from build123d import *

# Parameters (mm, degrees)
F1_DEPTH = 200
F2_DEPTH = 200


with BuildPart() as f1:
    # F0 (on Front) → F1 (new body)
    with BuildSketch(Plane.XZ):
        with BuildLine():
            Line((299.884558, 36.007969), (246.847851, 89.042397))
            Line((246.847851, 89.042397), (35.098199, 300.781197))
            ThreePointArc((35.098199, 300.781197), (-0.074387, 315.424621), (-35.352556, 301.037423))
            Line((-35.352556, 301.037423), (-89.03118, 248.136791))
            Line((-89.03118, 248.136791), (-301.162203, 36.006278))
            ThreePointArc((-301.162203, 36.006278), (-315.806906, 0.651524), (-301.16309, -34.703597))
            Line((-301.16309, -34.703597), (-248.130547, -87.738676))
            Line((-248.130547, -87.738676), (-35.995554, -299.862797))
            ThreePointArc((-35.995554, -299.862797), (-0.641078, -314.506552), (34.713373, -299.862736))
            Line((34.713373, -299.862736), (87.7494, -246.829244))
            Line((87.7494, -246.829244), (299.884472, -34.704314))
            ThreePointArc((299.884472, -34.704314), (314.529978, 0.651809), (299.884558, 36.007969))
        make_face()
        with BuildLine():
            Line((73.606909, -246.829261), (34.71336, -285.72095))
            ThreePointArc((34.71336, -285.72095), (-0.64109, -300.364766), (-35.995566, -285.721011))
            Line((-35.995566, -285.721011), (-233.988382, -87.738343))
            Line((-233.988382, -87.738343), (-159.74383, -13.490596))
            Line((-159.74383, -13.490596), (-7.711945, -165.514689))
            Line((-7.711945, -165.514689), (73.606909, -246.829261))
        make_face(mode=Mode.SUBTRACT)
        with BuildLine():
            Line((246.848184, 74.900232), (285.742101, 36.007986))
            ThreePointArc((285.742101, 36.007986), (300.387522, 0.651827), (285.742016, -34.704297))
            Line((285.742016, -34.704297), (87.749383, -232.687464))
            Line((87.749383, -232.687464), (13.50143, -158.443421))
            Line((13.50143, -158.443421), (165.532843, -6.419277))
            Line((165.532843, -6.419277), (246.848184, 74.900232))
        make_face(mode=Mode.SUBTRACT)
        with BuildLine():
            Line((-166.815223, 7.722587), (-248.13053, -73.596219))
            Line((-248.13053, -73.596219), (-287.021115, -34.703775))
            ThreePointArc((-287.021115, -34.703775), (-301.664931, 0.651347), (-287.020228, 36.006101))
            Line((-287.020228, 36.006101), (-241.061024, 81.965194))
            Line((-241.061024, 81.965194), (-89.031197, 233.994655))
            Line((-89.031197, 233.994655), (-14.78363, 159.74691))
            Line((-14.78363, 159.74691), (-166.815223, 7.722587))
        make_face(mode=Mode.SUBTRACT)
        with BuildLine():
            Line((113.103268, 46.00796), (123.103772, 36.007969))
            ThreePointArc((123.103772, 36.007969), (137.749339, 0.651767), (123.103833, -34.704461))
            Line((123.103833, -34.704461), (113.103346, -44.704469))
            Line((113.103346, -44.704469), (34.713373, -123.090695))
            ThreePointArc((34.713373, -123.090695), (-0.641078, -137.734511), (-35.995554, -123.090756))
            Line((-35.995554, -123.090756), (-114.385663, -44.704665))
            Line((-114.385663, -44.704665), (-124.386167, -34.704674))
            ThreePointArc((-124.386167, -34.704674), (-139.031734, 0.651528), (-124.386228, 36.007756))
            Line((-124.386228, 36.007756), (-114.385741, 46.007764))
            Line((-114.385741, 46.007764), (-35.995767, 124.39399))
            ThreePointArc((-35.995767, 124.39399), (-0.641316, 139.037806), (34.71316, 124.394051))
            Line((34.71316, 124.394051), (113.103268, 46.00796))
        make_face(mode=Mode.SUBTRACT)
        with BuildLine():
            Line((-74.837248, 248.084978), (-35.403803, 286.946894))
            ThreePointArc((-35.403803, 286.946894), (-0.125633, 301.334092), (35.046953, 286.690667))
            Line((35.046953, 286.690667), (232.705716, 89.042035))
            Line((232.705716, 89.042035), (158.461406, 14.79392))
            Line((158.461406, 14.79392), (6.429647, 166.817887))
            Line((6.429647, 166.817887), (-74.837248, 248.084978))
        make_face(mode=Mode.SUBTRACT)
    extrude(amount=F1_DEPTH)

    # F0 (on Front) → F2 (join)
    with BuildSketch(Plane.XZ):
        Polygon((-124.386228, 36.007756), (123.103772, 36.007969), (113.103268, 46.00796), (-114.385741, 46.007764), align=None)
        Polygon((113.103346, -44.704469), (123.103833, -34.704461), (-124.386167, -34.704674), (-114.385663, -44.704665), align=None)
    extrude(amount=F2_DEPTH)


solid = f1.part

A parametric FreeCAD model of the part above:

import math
import FreeCAD as App
import Part
import Sketcher

V = App.Vector


def add_polygon(sketch, points):
    """Adds a closed chain of lines whose ends are joined by coincident constraints."""
    first, n = sketch.GeometryCount, len(points)
    for a, b in zip(points, points[1:] + points[:1]):
        sketch.addGeometry(Part.LineSegment(App.Vector(*a, 0), App.Vector(*b, 0)), False)
    for i in range(n):
        sketch.addConstraint(Sketcher.Constraint("Coincident", first + i, 2, first + (i + 1) % n, 1))

doc = App.newDocument("Part")
body = doc.addObject("PartDesign::Body", "Body")

# Sketch on XZ plane
sketch1 = body.newObject("Sketcher::SketchObject", "Sketch")
sketch1.AttachmentSupport = (doc.getObject("XZ_Plane"), [""])
sketch1.MapMode = "FlatFace"
sketch1.addGeometry([
    Part.LineSegment(V(299.884558, 36.007969, 0), V(246.847851, 89.042397, 0)),  # 0
    Part.LineSegment(V(246.847851, 89.042397, 0), V(35.098199, 300.781197, 0)),  # 1
    Part.ArcOfCircle(Part.Circle(V(-0.256233, 265.424953, 0), V(0, 0, 1), 49.999999), math.radians(45.001468), math.radians(134.58177)),  # 2
    Part.LineSegment(V(-35.352556, 301.037423, 0), V(-89.03118, 248.136791, 0)),  # 3
    Part.LineSegment(V(-89.03118, 248.136791, 0), V(-301.162203, 36.006278, 0)),  # 4
    Part.ArcOfCircle(Part.Circle(V(-265.806906, 0.650897, 0), V(0, 0, 1), 50), math.radians(134.999932), math.radians(224.998631)),  # 5
    Part.LineSegment(V(-301.16309, -34.703597, 0), V(-248.130547, -87.738676, 0)),  # 6
    Part.LineSegment(V(-248.130547, -87.738676, 0), V(-35.995554, -299.862797, 0)),  # 7
    Part.ArcOfCircle(Part.Circle(V(-0.641121, -264.506552, 0), V(0, 0, 1), 50), math.radians(-134.998532), math.radians(-45.001369)),  # 8
    Part.LineSegment(V(34.713373, -299.862736, 0), V(87.7494, -246.829244, 0)),  # 9
    Part.LineSegment(V(87.7494, -246.829244, 0), V(299.884472, -34.704314, 0)),  # 10
    Part.ArcOfCircle(Part.Circle(V(264.529977, 0.65187, 0), V(0, 0, 1), 50.000001), math.radians(-45.001369), math.radians(45.00123)),  # 11
    Part.LineSegment(V(-7.711945, -165.514689, 0), V(73.606909, -246.829261, 0)),  # 12
    Part.LineSegment(V(73.606909, -246.829261, 0), V(34.71336, -285.72095, 0)),  # 13
    Part.ArcOfCircle(Part.Circle(V(-0.641134, -250.364767, 0), V(0, 0, 1), 49.999999), math.radians(-134.998533), math.radians(-45.001369)),  # 14
    Part.LineSegment(V(-35.995566, -285.721011, 0), V(-233.988382, -87.738343, 0)),  # 15
    Part.LineSegment(V(-233.988382, -87.738343, 0), V(-159.74383, -13.490596, 0)),  # 16
    Part.LineSegment(V(-159.74383, -13.490596, 0), V(-7.711945, -165.514689, 0)),  # 17
    Part.LineSegment(V(165.532843, -6.419277, 0), V(246.848184, 74.900232, 0)),  # 18
    Part.LineSegment(V(246.848184, 74.900232, 0), V(285.742101, 36.007986, 0)),  # 19
    Part.ArcOfCircle(Part.Circle(V(250.387522, 0.651887, 0), V(0, 0, 1), 50), math.radians(-45.00137), math.radians(45.001232)),  # 20
    Part.LineSegment(V(285.742016, -34.704297, 0), V(87.749383, -232.687464, 0)),  # 21
    Part.LineSegment(V(87.749383, -232.687464, 0), V(13.50143, -158.443421, 0)),  # 22
    Part.LineSegment(V(13.50143, -158.443421, 0), V(165.532843, -6.419277, 0)),  # 23
    Part.LineSegment(V(-14.78363, 159.74691, 0), V(-166.815223, 7.722587, 0)),  # 24
    Part.LineSegment(V(-166.815223, 7.722587, 0), V(-248.13053, -73.596219, 0)),  # 25
    Part.LineSegment(V(-248.13053, -73.596219, 0), V(-287.021115, -34.703775, 0)),  # 26
    Part.ArcOfCircle(Part.Circle(V(-251.66493, 0.650719, 0), V(0, 0, 1), 50.000001), math.radians(134.999932), math.radians(224.99863)),  # 27
    Part.LineSegment(V(-287.020228, 36.006101, 0), V(-241.061024, 81.965194, 0)),  # 28
    Part.LineSegment(V(-241.061024, 81.965194, 0), V(-89.031197, 233.994655, 0)),  # 29
    Part.LineSegment(V(-89.031197, 233.994655, 0), V(-14.78363, 159.74691, 0)),  # 30
    Part.LineSegment(V(34.71316, 124.394051, 0), V(113.103268, 46.00796, 0)),  # 31
    Part.LineSegment(V(113.103268, 46.00796, 0), V(123.103772, 36.007969, 0)),  # 32
    Part.ArcOfCircle(Part.Circle(V(87.749338, 0.651724, 0), V(0, 0, 1), 50.000001), math.radians(-45.001369), math.radians(45.001468)),  # 33
    Part.LineSegment(V(123.103833, -34.704461, 0), V(113.103346, -44.704469, 0)),  # 34
    Part.LineSegment(V(113.103346, -44.704469, 0), V(34.713373, -123.090695, 0)),  # 35
    Part.ArcOfCircle(Part.Circle(V(-0.641121, -87.734511, 0), V(0, 0, 1), 50), math.radians(-134.998532), math.radians(-45.001369)),  # 36
    Part.LineSegment(V(-35.995554, -123.090756, 0), V(-114.385663, -44.704665, 0)),  # 37
    Part.LineSegment(V(-114.385663, -44.704665, 0), V(-124.386167, -34.704674, 0)),  # 38
    Part.ArcOfCircle(Part.Circle(V(-89.031733, 0.651571, 0), V(0, 0, 1), 50.000001), math.radians(134.998631), math.radians(225.001468)),  # 39
    Part.LineSegment(V(-124.386228, 36.007756, 0), V(-114.385741, 46.007764, 0)),  # 40
    Part.LineSegment(V(-114.385741, 46.007764, 0), V(-35.995767, 124.39399, 0)),  # 41
    Part.ArcOfCircle(Part.Circle(V(-0.641273, 89.037806, 0), V(0, 0, 1), 50), math.radians(45.001468), math.radians(134.998631)),  # 42
    Part.LineSegment(V(6.429647, 166.817887, 0), V(-74.837248, 248.084978, 0)),  # 43
    Part.LineSegment(V(-74.837248, 248.084978, 0), V(-35.403803, 286.946894, 0)),  # 44
    Part.ArcOfCircle(Part.Circle(V(-0.30748, 251.334424, 0), V(0, 0, 1), 49.999999), math.radians(45.001467), math.radians(134.58177)),  # 45
    Part.LineSegment(V(35.046953, 286.690667, 0), V(232.705716, 89.042035, 0)),  # 46
    Part.LineSegment(V(232.705716, 89.042035, 0), V(158.461406, 14.79392, 0)),  # 47
    Part.LineSegment(V(158.461406, 14.79392, 0), V(6.429647, 166.817887, 0)),  # 48
], False)
sketch1.addConstraint([
    Sketcher.Constraint("Coincident", 0, 2, 1, 1),
    Sketcher.Constraint("Coincident", 1, 2, 2, 1),
    Sketcher.Constraint("Coincident", 2, 2, 3, 1),
    Sketcher.Constraint("Coincident", 3, 2, 4, 1),
    Sketcher.Constraint("Coincident", 4, 2, 5, 1),
    Sketcher.Constraint("Coincident", 5, 2, 6, 1),
    Sketcher.Constraint("Coincident", 6, 2, 7, 1),
    Sketcher.Constraint("Coincident", 7, 2, 8, 1),
    Sketcher.Constraint("Coincident", 8, 2, 9, 1),
    Sketcher.Constraint("Coincident", 9, 2, 10, 1),
    Sketcher.Constraint("Coincident", 10, 2, 11, 1),
    Sketcher.Constraint("Coincident", 11, 2, 0, 1),
    Sketcher.Constraint("Coincident", 12, 2, 13, 1),
    Sketcher.Constraint("Coincident", 13, 2, 14, 2),
    Sketcher.Constraint("Coincident", 14, 1, 15, 1),
    Sketcher.Constraint("Coincident", 15, 2, 16, 1),
    Sketcher.Constraint("Coincident", 16, 2, 17, 1),
    Sketcher.Constraint("Coincident", 17, 2, 12, 1),
    Sketcher.Constraint("Coincident", 18, 2, 19, 1),
    Sketcher.Constraint("Coincident", 19, 2, 20, 2),
    Sketcher.Constraint("Coincident", 20, 1, 21, 1),
    Sketcher.Constraint("Coincident", 21, 2, 22, 1),
    Sketcher.Constraint("Coincident", 22, 2, 23, 1),
    Sketcher.Constraint("Coincident", 23, 2, 18, 1),
    Sketcher.Constraint("Coincident", 24, 2, 25, 1),
    Sketcher.Constraint("Coincident", 25, 2, 26, 1),
    Sketcher.Constraint("Coincident", 26, 2, 27, 2),
    Sketcher.Constraint("Coincident", 27, 1, 28, 1),
    Sketcher.Constraint("Coincident", 28, 2, 29, 1),
    Sketcher.Constraint("Coincident", 29, 2, 30, 1),
    Sketcher.Constraint("Coincident", 30, 2, 24, 1),
    Sketcher.Constraint("Coincident", 31, 2, 32, 1),
    Sketcher.Constraint("Coincident", 32, 2, 33, 2),
    Sketcher.Constraint("Coincident", 33, 1, 34, 1),
    Sketcher.Constraint("Coincident", 34, 2, 35, 1),
    Sketcher.Constraint("Coincident", 35, 2, 36, 2),
    Sketcher.Constraint("Coincident", 36, 1, 37, 1),
    Sketcher.Constraint("Coincident", 37, 2, 38, 1),
    Sketcher.Constraint("Coincident", 38, 2, 39, 2),
    Sketcher.Constraint("Coincident", 39, 1, 40, 1),
    Sketcher.Constraint("Coincident", 40, 2, 41, 1),
    Sketcher.Constraint("Coincident", 41, 2, 42, 2),
    Sketcher.Constraint("Coincident", 42, 1, 31, 1),
    Sketcher.Constraint("Coincident", 43, 2, 44, 1),
    Sketcher.Constraint("Coincident", 44, 2, 45, 2),
    Sketcher.Constraint("Coincident", 45, 1, 46, 1),
    Sketcher.Constraint("Coincident", 46, 2, 47, 1),
    Sketcher.Constraint("Coincident", 47, 2, 48, 1),
    Sketcher.Constraint("Coincident", 48, 2, 43, 1),
    Sketcher.Constraint("Radius", 2, 49.999999),
    Sketcher.Constraint("Radius", 5, 50.0),
    Sketcher.Constraint("Radius", 8, 50.0),
    Sketcher.Constraint("Radius", 11, 50.000001),
    Sketcher.Constraint("Radius", 14, 49.999999),
    Sketcher.Constraint("Radius", 20, 50.0),
    Sketcher.Constraint("Radius", 27, 50.000001),
    Sketcher.Constraint("Radius", 33, 50.000001),
    Sketcher.Constraint("Radius", 36, 50.0),
    Sketcher.Constraint("Radius", 39, 50.000001),
    Sketcher.Constraint("Radius", 42, 50.0),
    Sketcher.Constraint("Radius", 45, 49.999999),
    Sketcher.Constraint("Distance", 24, 215.0),
    Sketcher.Constraint("Distance", 47, 105.000001),
    Sketcher.Constraint("Distance", 12, 114.999198),
    Sketcher.Constraint("DistanceX", -1, 1, 1, 2, 35.098199),
    Sketcher.Constraint("DistanceX", -1, 1, 9, 2, 87.7494),
    Sketcher.Constraint("DistanceX", -1, 1, 19, 2, 285.742101),
    Sketcher.Constraint("DistanceY", -1, 1, 27, 1, 36.006101),
    Sketcher.Constraint("Distance", 0, 75.003619),
    Sketcher.Constraint("Distance", 4, 299.998209),
    Sketcher.Constraint("Distance", 13, 55.002469),
    Sketcher.Constraint("Distance", 15, 279.99695),
    Sketcher.Constraint("Distance", 16, 104.999912),
    Sketcher.Constraint("Distance", 28, 64.996051),
    Sketcher.Constraint("Distance", 46, 279.52454),
    Sketcher.Constraint("DistanceX", 8, 3, -1, 1, 0.641121),
    Sketcher.Constraint("DistanceY", -1, 1, 11, 3, 0.65187),
    Sketcher.Constraint("DistanceX", 27, 3, -1, 1, 251.66493),
    Sketcher.Constraint("DistanceY", -1, 1, 27, 3, 0.650719),
    Sketcher.Constraint("DistanceX", -1, 1, 33, 3, 87.749338),
    Sketcher.Constraint("DistanceX", 36, 3, -1, 1, 0.641121),
    Sketcher.Constraint("DistanceY", 36, 3, -1, 1, 87.734511),
    Sketcher.Constraint("DistanceY", -1, 1, 39, 3, 0.651571),
    Sketcher.Constraint("DistanceX", 45, 3, -1, 1, 0.30748),
    Sketcher.Constraint("DistanceX", -1, 1, 0, 2, 246.847851),
    Sketcher.Constraint("DistanceX", 3, 2, -1, 1, 89.03118),
    Sketcher.Constraint("DistanceY", -1, 1, 3, 2, 248.136791),
    Sketcher.Constraint("DistanceY", -1, 1, 4, 2, 36.006278),
    Sketcher.Constraint("DistanceX", 5, 2, -1, 1, 301.16309),
    Sketcher.Constraint("DistanceX", -1, 1, 10, 2, 299.884472),
    Sketcher.Constraint("DistanceX", -1, 1, 11, 2, 299.884558),
    Sketcher.Constraint("DistanceY", -1, 1, 11, 2, 36.007969),
    Sketcher.Constraint("DistanceX", -1, 1, 12, 2, 73.606909),
    Sketcher.Constraint("DistanceY", 12, 2, -1, 1, 246.829261),
    Sketcher.Constraint("DistanceX", -1, 1, 13, 2, 34.71336),
    Sketcher.Constraint("DistanceY", 14, 1, -1, 1, 285.721011),
    Sketcher.Constraint("DistanceX", 15, 2, -1, 1, 233.988382),
    Sketcher.Constraint("DistanceX", 16, 2, -1, 1, 159.74383),
    Sketcher.Constraint("DistanceY", 17, 2, -1, 1, 165.514689),
    Sketcher.Constraint("DistanceX", -1, 1, 22, 2, 13.50143),
    Sketcher.Constraint("DistanceY", 22, 2, -1, 1, 158.443421),
    Sketcher.Constraint("DistanceX", 25, 2, -1, 1, 248.13053),
    Sketcher.Constraint("DistanceY", 25, 2, -1, 1, 73.596219),
    Sketcher.Constraint("DistanceX", 30, 2, -1, 1, 14.78363),
    Sketcher.Constraint("DistanceY", -1, 1, 30, 2, 159.74691),
    Sketcher.Constraint("DistanceX", -1, 1, 31, 2, 113.103268),
    Sketcher.Constraint("DistanceY", -1, 1, 31, 2, 46.00796),
    Sketcher.Constraint("DistanceY", -1, 1, 32, 2, 36.007969),
    Sketcher.Constraint("DistanceY", 33, 1, -1, 1, 34.704461),
    Sketcher.Constraint("DistanceY", 34, 2, -1, 1, 44.704469),
    Sketcher.Constraint("DistanceX", 40, 2, -1, 1, 114.385741),
    Sketcher.Constraint("DistanceY", -1, 1, 41, 2, 124.39399),
    Sketcher.Constraint("DistanceX", -1, 1, 42, 1, 34.71316),
    Sketcher.Constraint("DistanceY", -1, 1, 42, 1, 124.394051),
    Sketcher.Constraint("DistanceX", 43, 2, -1, 1, 74.837248),
    Sketcher.Constraint("DistanceY", -1, 1, 43, 2, 248.084978),
    Sketcher.Constraint("DistanceY", -1, 1, 47, 2, 14.79392),
    Sketcher.Constraint("Distance", 1, 299.451556),
    Sketcher.Constraint("Distance", 3, 75.364922),
    Sketcher.Constraint("Distance", 6, 75.001135),
    Sketcher.Constraint("Distance", 7, 299.996497),
    Sketcher.Constraint("Distance", 9, 75.002476),
    Sketcher.Constraint("Distance", 10, 299.997124),
    Sketcher.Constraint("Distance", 17, 215.000044),
    Sketcher.Constraint("Distance", 18, 115.000205),
    Sketcher.Constraint("Distance", 19, 55.003123),
    Sketcher.Constraint("Distance", 21, 279.997173),
    Sketcher.Constraint("Distance", 22, 104.999697),
    Sketcher.Constraint("Distance", 23, 214.999746),
    Sketcher.Constraint("Distance", 26, 55.000907),
    Sketcher.Constraint("Distance", 29, 215.002384),
    Sketcher.Constraint("Distance", 30, 105.002042),
    Sketcher.Constraint("Distance", 32, 14.142486),
    Sketcher.Constraint("Distance", 34, 14.142486),
    Sketcher.Constraint("Distance", 35, 110.857513),
    Sketcher.Constraint("Distance", 37, 110.857514),
    Sketcher.Constraint("Distance", 38, 14.142486),
    Sketcher.Constraint("Distance", 40, 14.142486),
    Sketcher.Constraint("Distance", 41, 110.857514),
    Sketcher.Constraint("Distance", 43, 114.928884),
    Sketcher.Constraint("Distance", 44, 55.364656),
    Sketcher.Constraint("Distance", 48, 214.999866),
    Sketcher.Constraint("DistanceX", 2, 3, -1, 1, 0.256233),
    Sketcher.Constraint("DistanceX", 5, 3, -1, 1, 265.806906),
    Sketcher.Constraint("DistanceY", 8, 3, -1, 1, 264.506552),
    Sketcher.Constraint("DistanceX", -1, 1, 20, 3, 250.387522),
    Sketcher.Constraint("DistanceY", -1, 1, 20, 3, 0.651887),
    Sketcher.Constraint("DistanceX", 39, 3, -1, 1, 89.031733),
    Sketcher.Constraint("DistanceX", 42, 3, -1, 1, 0.641273),
    Sketcher.Constraint("DistanceY", -1, 1, 45, 3, 251.334424),
    Sketcher.Constraint("DistanceX", 6, 2, -1, 1, 248.130547),
    Sketcher.Constraint("DistanceX", -1, 1, 20, 1, 285.742016),
    Sketcher.Constraint("DistanceX", -1, 1, 23, 2, 165.532843),
    Sketcher.Constraint("DistanceX", 24, 2, -1, 1, 166.815223),
    Sketcher.Constraint("DistanceX", 28, 2, -1, 1, 241.061024),
    Sketcher.Constraint("DistanceX", 36, 1, -1, 1, 35.995554),
    Sketcher.Constraint("DistanceX", 37, 2, -1, 1, 114.385663),
    Sketcher.Constraint("DistanceX", -1, 1, 45, 1, 35.046953),
    Sketcher.Constraint("DistanceX", -1, 1, 48, 2, 6.429647),
])
pad1 = body.newObject("PartDesign::Pad", "Pad")
pad1.Profile = sketch1
pad1.Length = 200

# Sketch on XZ plane
sketch2 = body.newObject("Sketcher::SketchObject", "Sketch001")
sketch2.AttachmentSupport = (doc.getObject("XZ_Plane"), [""])
sketch2.MapMode = "FlatFace"
add_polygon(sketch2, [(-124.386228, 36.007756), (123.103772, 36.007969), (113.103268, 46.00796), (-114.385741, 46.007764)])  # lines 0-3
add_polygon(sketch2, [(113.103346, -44.704469), (123.103833, -34.704461), (-124.386167, -34.704674), (-114.385663, -44.704665)])  # lines 4-7
sketch2.addConstraint([
    Sketcher.Constraint("Parallel", 0, 2),
    Sketcher.Constraint("Parallel", 3, 4),
    Sketcher.Constraint("Parallel", 2, 5),
    Sketcher.Constraint("Parallel", 1, 6),
    Sketcher.Constraint("Parallel", 5, 7),
    Sketcher.Constraint("Equal", 1, 3),
    Sketcher.Constraint("Equal", 3, 4),
    Sketcher.Constraint("Equal", 0, 5),
    Sketcher.Constraint("Distance", 0, 247.49),
    Sketcher.Constraint("Distance", 2, 227.489009),
    Sketcher.Constraint("DistanceY", -1, 1, 0, 2, 36.007969),
    Sketcher.Constraint("DistanceX", -1, 1, 1, 2, 113.103268),
    Sketcher.Constraint("DistanceY", -1, 1, 1, 2, 46.00796),
    Sketcher.Constraint("DistanceX", 3, 2, -1, 1, 124.386228),
    Sketcher.Constraint("DistanceY", 4, 2, -1, 1, 34.704461),
    Sketcher.Constraint("DistanceX", 3, 2, 4, 2, 247.490061),
])
pad2 = body.newObject("PartDesign::Pad", "Pad001")
pad2.Profile = sketch2
pad2.Length = 200

doc.recompute()
